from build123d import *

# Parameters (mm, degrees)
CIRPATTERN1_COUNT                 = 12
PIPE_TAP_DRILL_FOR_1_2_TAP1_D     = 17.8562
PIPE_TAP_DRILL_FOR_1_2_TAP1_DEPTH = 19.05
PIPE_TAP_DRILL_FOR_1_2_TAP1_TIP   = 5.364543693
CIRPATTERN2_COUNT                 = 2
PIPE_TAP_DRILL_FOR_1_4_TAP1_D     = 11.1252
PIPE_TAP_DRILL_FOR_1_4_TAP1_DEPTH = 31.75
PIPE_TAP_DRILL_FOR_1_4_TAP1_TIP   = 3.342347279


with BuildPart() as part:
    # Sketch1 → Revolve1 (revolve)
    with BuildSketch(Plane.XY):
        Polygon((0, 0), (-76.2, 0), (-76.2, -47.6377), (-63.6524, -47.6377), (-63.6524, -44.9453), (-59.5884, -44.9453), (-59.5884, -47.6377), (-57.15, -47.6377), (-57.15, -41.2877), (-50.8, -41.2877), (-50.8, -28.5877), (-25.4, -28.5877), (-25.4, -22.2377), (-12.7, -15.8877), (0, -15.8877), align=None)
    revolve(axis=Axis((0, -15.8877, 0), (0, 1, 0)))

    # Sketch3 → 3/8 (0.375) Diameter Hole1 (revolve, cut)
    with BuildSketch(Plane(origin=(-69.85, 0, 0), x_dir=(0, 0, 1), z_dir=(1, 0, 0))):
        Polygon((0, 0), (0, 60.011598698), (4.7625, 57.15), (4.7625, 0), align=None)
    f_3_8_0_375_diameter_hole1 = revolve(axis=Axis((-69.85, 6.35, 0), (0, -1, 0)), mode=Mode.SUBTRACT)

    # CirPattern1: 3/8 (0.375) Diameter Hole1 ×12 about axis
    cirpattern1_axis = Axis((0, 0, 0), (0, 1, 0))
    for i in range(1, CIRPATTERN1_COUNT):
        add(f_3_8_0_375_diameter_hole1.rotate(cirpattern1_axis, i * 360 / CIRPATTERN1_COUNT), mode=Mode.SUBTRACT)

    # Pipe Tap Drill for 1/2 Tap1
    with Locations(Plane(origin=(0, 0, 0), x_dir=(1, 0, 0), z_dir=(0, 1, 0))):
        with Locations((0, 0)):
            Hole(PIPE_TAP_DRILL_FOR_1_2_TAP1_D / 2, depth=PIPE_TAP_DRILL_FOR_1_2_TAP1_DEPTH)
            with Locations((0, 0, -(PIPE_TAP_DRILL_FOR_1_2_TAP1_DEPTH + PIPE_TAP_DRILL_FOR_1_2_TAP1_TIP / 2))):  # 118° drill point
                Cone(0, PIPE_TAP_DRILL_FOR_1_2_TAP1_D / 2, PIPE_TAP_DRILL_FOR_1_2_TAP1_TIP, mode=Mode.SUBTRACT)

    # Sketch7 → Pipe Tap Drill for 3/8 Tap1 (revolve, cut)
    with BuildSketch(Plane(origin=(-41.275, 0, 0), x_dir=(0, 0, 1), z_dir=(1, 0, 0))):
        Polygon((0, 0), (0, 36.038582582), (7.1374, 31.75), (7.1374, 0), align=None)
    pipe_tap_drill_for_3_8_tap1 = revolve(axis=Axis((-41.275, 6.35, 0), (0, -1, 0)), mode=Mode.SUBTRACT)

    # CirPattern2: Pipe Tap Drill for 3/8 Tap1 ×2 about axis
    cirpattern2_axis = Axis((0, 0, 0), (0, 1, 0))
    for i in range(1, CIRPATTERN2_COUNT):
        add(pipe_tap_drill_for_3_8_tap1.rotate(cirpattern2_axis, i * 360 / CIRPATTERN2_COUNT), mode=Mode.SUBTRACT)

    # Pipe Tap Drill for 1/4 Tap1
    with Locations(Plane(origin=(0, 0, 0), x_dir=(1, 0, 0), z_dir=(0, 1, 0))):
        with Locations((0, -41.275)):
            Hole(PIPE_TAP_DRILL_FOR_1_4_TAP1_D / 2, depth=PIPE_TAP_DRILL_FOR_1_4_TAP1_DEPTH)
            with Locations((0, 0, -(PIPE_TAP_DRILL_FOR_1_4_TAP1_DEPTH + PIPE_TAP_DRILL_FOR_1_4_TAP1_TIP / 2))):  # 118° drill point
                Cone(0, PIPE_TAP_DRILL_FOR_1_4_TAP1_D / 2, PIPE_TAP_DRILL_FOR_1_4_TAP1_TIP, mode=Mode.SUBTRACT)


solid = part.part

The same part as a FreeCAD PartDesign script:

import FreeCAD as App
import Part
import Sketcher
Q = App.Units.Quantity

doc = App.newDocument("Part")
params = doc.addObject("Spreadsheet::Sheet", "Params")
for row, (alias, value) in enumerate([
    ("sketch1_width", "3 in"),
    ("sketch1_width2", "1 in"),
    ("sketch1_width3", "0.5 in"),
    ("sketch1_width4", "0.16 in"),
    ("sketch1_width5", "0.494 in"),
    ("revolution_angle", "360 deg"),
    ("sketch2_width", "2.25 in"),
    ("sketch2_height", "0.1875 in"),
    ("groove_angle", "360 deg"),
    ("sketch3_diameter", "0.703 in"),
    ("hole_diameter", "0.703 in"),
    ("hole_depth", "0.75 in"),
    ("sketch4_width", "1.25 in"),
    ("sketch4_height", "0.281 in"),
    ("groove2_angle", "360 deg"),
    ("sketch5_diameter", "0.438 in"),
    ("hole2_diameter", "0.438 in"),
    ("hole2_depth", "1.25 in"),
], start=1):
    params.set(f"A{row}", alias)
    params.set(f"B{row}", "=" + value)
    params.setAlias(f"B{row}", alias)

body = doc.addObject("PartDesign::Body", "Body")

sketch1 = body.newObject("Sketcher::SketchObject", "Sketch")
sketch1.AttachmentSupport = (doc.getObject("XY_Plane"), [""])
sketch1.MapMode = "FlatFace"
sketch1.addGeometry([
    Part.LineSegment(App.Vector(0, 0, 0), App.Vector(-76.2, 0, 0)),
    Part.LineSegment(App.Vector(-76.2, 0, 0), App.Vector(-76.2, -47.6, 0)),
    Part.LineSegment(App.Vector(-76.2, -47.6, 0), App.Vector(-63.7, -47.6, 0)),
    Part.LineSegment(App.Vector(-63.7, -47.6, 0), App.Vector(-63.7, -44.9, 0)),
    Part.LineSegment(App.Vector(-63.7, -44.9, 0), App.Vector(-59.6, -44.9, 0)),
    Part.LineSegment(App.Vector(-59.6, -44.9, 0), App.Vector(-59.6, -47.6, 0)),
    Part.LineSegment(App.Vector(-59.6, -47.6, 0), App.Vector(-57.1, -47.6, 0)),
    Part.LineSegment(App.Vector(-57.1, -47.6, 0), App.Vector(-57.1, -41.3, 0)),
    Part.LineSegment(App.Vector(-57.1, -41.3, 0), App.Vector(-50.8, -41.3, 0)),
    Part.LineSegment(App.Vector(-50.8, -41.3, 0), App.Vector(-50.8, -28.6, 0)),
    Part.LineSegment(App.Vector(-50.8, -28.6, 0), App.Vector(-25.4, -28.6, 0)),
    Part.LineSegment(App.Vector(-25.4, -28.6, 0), App.Vector(-25.4, -22.2, 0)),
    Part.LineSegment(App.Vector(-25.4, -22.2, 0), App.Vector(-12.7, -15.9, 0)),
    Part.LineSegment(App.Vector(-12.7, -15.9, 0), App.Vector(0, -15.9, 0)),
    Part.LineSegment(App.Vector(0, -15.9, 0), App.Vector(0, 0, 0)),
], False)
sketch1.addConstraint([
    Sketcher.Constraint("Coincident", 0, 2, 1, 1),
    Sketcher.Constraint("Coincident", 1, 2, 2, 1),
    Sketcher.Constraint("Coincident", 2, 2, 3, 1),
    Sketcher.Constraint("Coincident", 3, 2, 4, 1),
    Sketcher.Constraint("Coincident", 4, 2, 5, 1),
    Sketcher.Constraint("Coincident", 5, 2, 6, 1),
    Sketcher.Constraint("Coincident", 6, 2, 7, 1),
    Sketcher.Constraint("Coincident", 7, 2, 8, 1),
    Sketcher.Constraint("Coincident", 8, 2, 9, 1),
    Sketcher.Constraint("Coincident", 9, 2, 10, 1),
    Sketcher.Constraint("Coincident", 10, 2, 11, 1),
    Sketcher.Constraint("Coincident", 11, 2, 12, 1),
    Sketcher.Constraint("Coincident", 12, 2, 13, 1),
    Sketcher.Constraint("Coincident", 13, 2, 14, 1),
    Sketcher.Constraint("Coincident", 14, 2, 0, 1),
    Sketcher.Constraint("Horizontal", 0),
    Sketcher.Constraint("Vertical", 1),
    Sketcher.Constraint("Horizontal", 2),
    Sketcher.Constraint("Vertical", 3),
    Sketcher.Constraint("Horizontal", 4),
    Sketcher.Constraint("Vertical", 5),
    Sketcher.Constraint("Horizontal", 6),
    Sketcher.Constraint("Vertical", 7),
    Sketcher.Constraint("Horizontal", 8),
    Sketcher.Constraint("Vertical", 9),
    Sketcher.Constraint("Horizontal", 10),
    Sketcher.Constraint("Vertical", 11),
    Sketcher.Constraint("Horizontal", 13),
    Sketcher.Constraint("Vertical", 14),
    Sketcher.Constraint("Coincident", 14, 2, -1, 1),
    Sketcher.Constraint("Horizontal", 2, 2, 5, 2),
    Sketcher.Constraint("Equal", 8, 7),
    Sketcher.Constraint("Equal", 13, 9),
    Sketcher.Constraint("Equal", 7, 11),
    Sketcher.Constraint("DistanceX", 0, 2, 0, 1, Q("3 in")),
    Sketcher.Constraint("DistanceX", 10, 1, 10, 2, Q("1 in")),
    Sketcher.Constraint("DistanceX", 13, 1, 13, 2, Q("0.5 in")),
    Sketcher.Constraint("DistanceX", 8, 2, -1, 1, Q("2 in")),
    Sketcher.Constraint("DistanceY", 6, 2, 11, 2, Q("1 in")),
    Sketcher.Constraint("DistanceY", 8, 2, 12, 2, Q("1 in")),
    Sketcher.Constraint("DistanceX", 4, 1, 4, 2, Q("0.16 in")),
    Sketcher.Constraint("DistanceX", 2, 1, 2, 2, Q("0.494 in")),
    Sketcher.Constraint("DistanceY", 3, 1, 3, 2, Q("0.106 in")),
    Sketcher.Constraint("DistanceY", 1, 2, 1, 1, Q("1.8755 in")),
])
sketch1.setExpression("Constraints[34]", "Params.sketch1_width")
sketch1.setExpression("Constraints[35]", "Params.sketch1_width2")
sketch1.setExpression("Constraints[36]", "Params.sketch1_width3")
sketch1.setExpression("Constraints[40]", "Params.sketch1_width4")
sketch1.setExpression("Constraints[41]", "Params.sketch1_width5")
revolution = body.newObject("PartDesign::Revolution", "Revolution")
revolution.Profile = sketch1
revolution.ReferenceAxis = (sketch1, ["V_Axis"])
revolution.setExpression("Angle", "Params.revolution_angle")

sketch2 = body.newObject("Sketcher::SketchObject", "Sketch001")
sketch2.AttachmentSupport = (doc.getObject("YZ_Plane"), [""])
sketch2.MapMode = "FlatFace"
sketch2.AttachmentOffset = App.Placement(App.Vector(0, 0, -2.75 * 25.4), App.Rotation())
sketch2.addGeometry([
    Part.LineSegment(App.Vector(-60, 0, 0), App.Vector(0, 0, 0)),
    Part.LineSegment(App.Vector(0, 0, 0), App.Vector(0, 4.8, 0)),
    Part.LineSegment(App.Vector(0, 4.8, 0), App.Vector(-57.1, 4.8, 0)),
    Part.LineSegment(App.Vector(-57.1, 4.8, 0), App.Vector(-60, 0, 0)),
], False)
sketch2.addConstraint([
    Sketcher.Constraint("Coincident", 0, 2, 1, 1),
    Sketcher.Constraint("Coincident", 1, 2, 2, 1),
    Sketcher.Constraint("Coincident", 2, 2, 3, 1),
    Sketcher.Constraint("Coincident", 3, 2, 0, 1),
    Sketcher.Constraint("Horizontal", 0),
    Sketcher.Constraint("Vertical", 1),
    Sketcher.Constraint("Horizontal", 2),
    Sketcher.Constraint("Coincident", 0, 2, -1, 1),
    Sketcher.Constraint("Angle", 3, Q("-121 deg")),
    Sketcher.Constraint("DistanceX", 2, 2, 2, 1, Q("2.25 in")),
    Sketcher.Constraint("DistanceY", 1, 1, 1, 2, Q("0.1875 in")),
])
sketch2.setExpression("Constraints[9]", "Params.sketch2_width")
sketch2.setExpression("Constraints[10]", "Params.sketch2_height")
groove = body.newObject("PartDesign::Groove", "Groove")
groove.Profile = sketch2
groove.ReferenceAxis = (sketch2, ["H_Axis"])
groove.setExpression("Angle", "Params.groove_angle")
doc.recompute()

polarpattern = body.newObject("PartDesign::PolarPattern", "PolarPattern")
polarpattern.Originals = [groove]
polarpattern.Axis = (doc.getObject("Y_Axis"), [""])
polarpattern.Angle = 360
polarpattern.Occurrences = 12
body.Tip = polarpattern

sketch3 = body.newObject("Sketcher::SketchObject", "Sketch002")
sketch3.AttachmentSupport = (doc.getObject("XZ_Plane"), [""])
sketch3.MapMode = "FlatFace"
sketch3.addGeometry(Part.Circle(App.Vector(0, 0, 0), App.Vector(0, 0, 1), 9), False)
sketch3.addConstraint([
    Sketcher.Constraint("Coincident", 0, 3, -1, 1),
    Sketcher.Constraint("Diameter", 0, Q("0.703 in")),
])
sketch3.setExpression("Constraints[1]", "Params.sketch3_diameter")
doc.recompute()
hole = body.newObject("PartDesign::Hole", "Hole")
hole.Profile = sketch3
hole.ThreadType = "None"
hole.setExpression("Diameter", "Params.hole_diameter")
hole.DepthType = "Dimension"
hole.setExpression("Depth", "Params.hole_depth")
hole.DrillPoint = "Angled"
hole.DrillPointAngle = 118
hole.Reversed = True

sketch4 = body.newObject("Sketcher::SketchObject", "Sketch003")
sketch4.AttachmentSupport = (doc.getObject("YZ_Plane"), [""])
sketch4.MapMode = "FlatFace"
sketch4.AttachmentOffset = App.Placement(App.Vector(0, 0, -1.625 * 25.4), App.Rotation())
sketch4.addGeometry([
    Part.LineSegment(App.Vector(-36, 0, 0), App.Vector(0, 0, 0)),
    Part.LineSegment(App.Vector(0, 0, 0), App.Vector(0, 7, 0)),
    Part.LineSegment(App.Vector(0, 7, 0), App.Vector(-32, 7, 0)),
    Part.LineSegment(App.Vector(-32, 7, 0), App.Vector(-36, 0, 0)),
], False)
sketch4.addConstraint([
    Sketcher.Constraint("Coincident", 0, 2, 1, 1),
    Sketcher.Constraint("Coincident", 1, 2, 2, 1),
    Sketcher.Constraint("Coincident", 2, 2, 3, 1),
    Sketcher.Constraint("Coincident", 3, 2, 0, 1),
    Sketcher.Constraint("Horizontal", 0),
    Sketcher.Constraint("Vertical", 1),
    Sketcher.Constraint("Horizontal", 2),
    Sketcher.Constraint("Coincident", 0, 2, -1, 1),
    Sketcher.Constraint("Angle", 3, Q("-121 deg")),
    Sketcher.Constraint("DistanceX", 2, 2, 2, 1, Q("1.25 in")),
    Sketcher.Constraint("DistanceY", 1, 1, 1, 2, Q("0.281 in")),
])
sketch4.setExpression("Constraints[9]", "Params.sketch4_width")
sketch4.setExpression("Constraints[10]", "Params.sketch4_height")
groove2 = body.newObject("PartDesign::Groove", "Groove001")
groove2.Profile = sketch4
groove2.ReferenceAxis = (sketch4, ["H_Axis"])
groove2.setExpression("Angle", "Params.groove2_angle")
doc.recompute()

polarpattern2 = body.newObject("PartDesign::PolarPattern", "PolarPattern001")
polarpattern2.Originals = [groove2]
polarpattern2.Axis = (doc.getObject("Y_Axis"), [""])
polarpattern2.Angle = 360
polarpattern2.Occurrences = 2
body.Tip = polarpattern2

sketch5 = body.newObject("Sketcher::SketchObject", "Sketch004")
sketch5.AttachmentSupport = (doc.getObject("XZ_Plane"), [""])
sketch5.MapMode = "FlatFace"
sketch5.addGeometry(Part.Circle(App.Vector(0, 41, 0), App.Vector(0, 0, 1), 6), False)
sketch5.addConstraint([
    Sketcher.Constraint("PointOnObject", 0, 3, -2),
    Sketcher.Constraint("Diameter", 0, Q("0.438 in")),
    Sketcher.Constraint("DistanceY", -1, 1, 0, 3, Q("1.625 in")),
])
sketch5.setExpression("Constraints[1]", "Params.sketch5_diameter")
doc.recompute()
hole2 = body.newObject("PartDesign::Hole", "Hole001")
hole2.Profile = sketch5
hole2.ThreadType = "None"
hole2.setExpression("Diameter", "Params.hole2_diameter")
hole2.DepthType = "Dimension"
hole2.setExpression("Depth", "Params.hole2_depth")
hole2.DrillPoint = "Angled"
hole2.DrillPointAngle = 118
hole2.Reversed = True

doc.recompute()
